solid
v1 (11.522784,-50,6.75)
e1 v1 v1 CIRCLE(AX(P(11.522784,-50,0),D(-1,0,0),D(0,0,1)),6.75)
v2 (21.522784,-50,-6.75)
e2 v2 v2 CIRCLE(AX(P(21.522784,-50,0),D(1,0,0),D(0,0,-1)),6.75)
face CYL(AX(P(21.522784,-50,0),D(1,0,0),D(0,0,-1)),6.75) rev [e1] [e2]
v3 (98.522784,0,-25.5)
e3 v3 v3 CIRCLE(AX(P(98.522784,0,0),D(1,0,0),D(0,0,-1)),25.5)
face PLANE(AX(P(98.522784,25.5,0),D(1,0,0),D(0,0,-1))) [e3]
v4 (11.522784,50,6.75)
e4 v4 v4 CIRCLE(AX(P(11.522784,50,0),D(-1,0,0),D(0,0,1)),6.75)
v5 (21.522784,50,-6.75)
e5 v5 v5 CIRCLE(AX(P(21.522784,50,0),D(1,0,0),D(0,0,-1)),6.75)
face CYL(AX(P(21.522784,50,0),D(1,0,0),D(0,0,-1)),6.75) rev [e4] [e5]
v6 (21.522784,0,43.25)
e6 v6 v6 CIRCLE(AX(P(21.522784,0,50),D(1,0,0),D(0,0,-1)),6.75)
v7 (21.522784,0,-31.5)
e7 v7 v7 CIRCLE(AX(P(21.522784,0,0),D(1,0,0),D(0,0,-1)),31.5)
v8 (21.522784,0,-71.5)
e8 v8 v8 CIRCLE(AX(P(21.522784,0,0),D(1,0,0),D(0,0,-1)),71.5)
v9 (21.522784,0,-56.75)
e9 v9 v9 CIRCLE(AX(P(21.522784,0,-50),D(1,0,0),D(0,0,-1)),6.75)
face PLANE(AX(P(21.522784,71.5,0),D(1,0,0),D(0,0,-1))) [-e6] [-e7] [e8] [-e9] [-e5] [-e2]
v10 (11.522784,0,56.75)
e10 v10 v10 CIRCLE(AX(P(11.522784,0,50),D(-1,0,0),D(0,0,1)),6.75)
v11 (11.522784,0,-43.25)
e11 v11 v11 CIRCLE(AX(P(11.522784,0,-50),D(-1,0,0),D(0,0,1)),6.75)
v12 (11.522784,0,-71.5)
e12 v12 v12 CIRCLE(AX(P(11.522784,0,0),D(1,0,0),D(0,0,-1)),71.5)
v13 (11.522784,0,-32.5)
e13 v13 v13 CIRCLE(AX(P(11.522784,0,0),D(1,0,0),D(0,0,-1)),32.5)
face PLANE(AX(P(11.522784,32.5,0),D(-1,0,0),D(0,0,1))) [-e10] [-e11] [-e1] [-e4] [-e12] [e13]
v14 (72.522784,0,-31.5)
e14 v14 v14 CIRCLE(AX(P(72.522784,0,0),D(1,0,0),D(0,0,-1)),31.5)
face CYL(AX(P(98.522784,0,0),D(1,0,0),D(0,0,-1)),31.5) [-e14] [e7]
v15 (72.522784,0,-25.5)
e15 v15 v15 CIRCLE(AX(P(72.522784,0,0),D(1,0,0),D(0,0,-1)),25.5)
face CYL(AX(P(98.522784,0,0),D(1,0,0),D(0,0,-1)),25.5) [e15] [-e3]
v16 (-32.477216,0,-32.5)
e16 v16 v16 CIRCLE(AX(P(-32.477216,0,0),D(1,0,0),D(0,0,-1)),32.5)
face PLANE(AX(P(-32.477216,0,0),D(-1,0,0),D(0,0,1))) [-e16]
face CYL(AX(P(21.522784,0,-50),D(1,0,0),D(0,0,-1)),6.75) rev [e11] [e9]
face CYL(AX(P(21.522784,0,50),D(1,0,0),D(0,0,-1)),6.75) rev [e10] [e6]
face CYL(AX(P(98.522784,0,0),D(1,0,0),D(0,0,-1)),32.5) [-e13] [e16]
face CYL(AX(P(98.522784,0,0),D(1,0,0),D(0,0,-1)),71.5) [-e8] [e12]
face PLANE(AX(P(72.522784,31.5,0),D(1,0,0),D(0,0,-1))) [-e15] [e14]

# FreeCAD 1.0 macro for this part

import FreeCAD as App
import Part
import Sketcher
from FreeCAD import Vector
Q = App.Units.Quantity

doc = App.newDocument("Part")
body = doc.addObject("PartDesign::Body", "Body")

sketch1 = body.newObject("Sketcher::SketchObject", "Sketch")
sketch1.AttachmentSupport = (doc.getObject("XY_Plane"), [""])
sketch1.MapMode = "FlatFace"
sketch1.addGeometry([
    Part.LineSegment(Vector(-32, 32, 0), Vector(-32, 0, 0)),
    Part.LineSegment(Vector(-32, 0, 0), Vector(99, 0, 0)),
    Part.LineSegment(Vector(99, 0, 0), Vector(99, 26, 0)),
    Part.LineSegment(Vector(99, 26, 0), Vector(73, 26, 0)),
    Part.LineSegment(Vector(73, 26, 0), Vector(73, 32, 0)),
    Part.LineSegment(Vector(73, 32, 0), Vector(22, 32, 0)),
    Part.LineSegment(Vector(22, 32, 0), Vector(22, 72, 0)),
    Part.LineSegment(Vector(22, 72, 0), Vector(12, 72, 0)),
    Part.LineSegment(Vector(12, 72, 0), Vector(12, 32, 0)),
    Part.LineSegment(Vector(12, 32, 0), Vector(-32, 32, 0)),
], False)
sketch1.addConstraint([
    Sketcher.Constraint("Coincident", 0, 2, 1, 1),
    Sketcher.Constraint("Coincident", 1, 2, 2, 1),
    Sketcher.Constraint("Coincident", 2, 2, 3, 1),
    Sketcher.Constraint("Coincident", 3, 2, 4, 1),
    Sketcher.Constraint("Coincident", 4, 2, 5, 1),
    Sketcher.Constraint("Coincident", 5, 2, 6, 1),
    Sketcher.Constraint("Coincident", 6, 2, 7, 1),
    Sketcher.Constraint("Coincident", 7, 2, 8, 1),
    Sketcher.Constraint("Coincident", 8, 2, 9, 1),
    Sketcher.Constraint("Coincident", 9, 2, 0, 1),
    Sketcher.Constraint("Vertical", 0),
    Sketcher.Constraint("Horizontal", 1),
    Sketcher.Constraint("Vertical", 2),
    Sketcher.Constraint("Horizontal", 3),
    Sketcher.Constraint("Vertical", 4),
    Sketcher.Constraint("Horizontal", 5),
    Sketcher.Constraint("Vertical", 6),
    Sketcher.Constraint("Horizontal", 7),
    Sketcher.Constraint("Vertical", 8),
    Sketcher.Constraint("Horizontal", 9),
    Sketcher.Constraint("PointOnObject", 0, 2, -1),
    Sketcher.Constraint("DistanceX", 1, 1, 1, 2, Q("131 mm")),
    Sketcher.Constraint("DistanceX", 3, 2, 3, 1, Q("26 mm")),
    Sketcher.Constraint("DistanceX", 5, 2, 5, 1, Q("51 mm")),
    Sketcher.Constraint("DistanceX", 7, 2, 7, 1, Q("10 mm")),
    Sketcher.Constraint("DistanceY", 4, 1, 4, 2, Q("6 mm")),
    Sketcher.Constraint("DistanceY", 6, 1, 6, 2, Q("40 mm")),
    Sketcher.Constraint("DistanceY", 8, 2, 8, 1, Q("39 mm")),
    Sketcher.Constraint("DistanceY", 0, 2, 0, 1, Q("32.5 mm")),
    Sketcher.Constraint("DistanceX", 0, 2, -1, 1, Q("32.477216 mm")),
])
revolution = body.newObject("PartDesign::Revolution", "Revolution")
revolution.Profile = sketch1
revolution.ReferenceAxis = (sketch1, ["H_Axis"])
revolution.Angle = 360

sketch2 = body.newObject("Sketcher::SketchObject", "Sketch001")
sketch2.AttachmentSupport = (doc.getObject("YZ_Plane"), [""])
sketch2.MapMode = "FlatFace"
sketch2.AttachmentOffset = App.Placement(Vector(0, 0, 21.522784), App.Rotation())
sketch2.addGeometry(Part.Circle(Vector(50, 0, 0), Vector(0, 0, 1), 7), False)
sketch2.addConstraint([
    Sketcher.Constraint("PointOnObject", 0, 3, -1),
    Sketcher.Constraint("Diameter", 0, Q("13.5 mm")),
    Sketcher.Constraint("DistanceX", -1, 1, 0, 3, Q("50 mm")),
])
doc.recompute()
hole = body.newObject("PartDesign::Hole", "Hole")
hole.Profile = sketch2
hole.ThreadType = "None"
hole.Diameter = 13.5
hole.DepthType = "ThroughAll"
doc.recompute()

polarpattern = body.newObject("PartDesign::PolarPattern", "PolarPattern")
polarpattern.Originals = [hole]
polarpattern.Axis = (doc.getObject("X_Axis"), [""])
polarpattern.Angle = 360
polarpattern.Occurrences = 4
body.Tip = polarpattern

doc.recompute()
